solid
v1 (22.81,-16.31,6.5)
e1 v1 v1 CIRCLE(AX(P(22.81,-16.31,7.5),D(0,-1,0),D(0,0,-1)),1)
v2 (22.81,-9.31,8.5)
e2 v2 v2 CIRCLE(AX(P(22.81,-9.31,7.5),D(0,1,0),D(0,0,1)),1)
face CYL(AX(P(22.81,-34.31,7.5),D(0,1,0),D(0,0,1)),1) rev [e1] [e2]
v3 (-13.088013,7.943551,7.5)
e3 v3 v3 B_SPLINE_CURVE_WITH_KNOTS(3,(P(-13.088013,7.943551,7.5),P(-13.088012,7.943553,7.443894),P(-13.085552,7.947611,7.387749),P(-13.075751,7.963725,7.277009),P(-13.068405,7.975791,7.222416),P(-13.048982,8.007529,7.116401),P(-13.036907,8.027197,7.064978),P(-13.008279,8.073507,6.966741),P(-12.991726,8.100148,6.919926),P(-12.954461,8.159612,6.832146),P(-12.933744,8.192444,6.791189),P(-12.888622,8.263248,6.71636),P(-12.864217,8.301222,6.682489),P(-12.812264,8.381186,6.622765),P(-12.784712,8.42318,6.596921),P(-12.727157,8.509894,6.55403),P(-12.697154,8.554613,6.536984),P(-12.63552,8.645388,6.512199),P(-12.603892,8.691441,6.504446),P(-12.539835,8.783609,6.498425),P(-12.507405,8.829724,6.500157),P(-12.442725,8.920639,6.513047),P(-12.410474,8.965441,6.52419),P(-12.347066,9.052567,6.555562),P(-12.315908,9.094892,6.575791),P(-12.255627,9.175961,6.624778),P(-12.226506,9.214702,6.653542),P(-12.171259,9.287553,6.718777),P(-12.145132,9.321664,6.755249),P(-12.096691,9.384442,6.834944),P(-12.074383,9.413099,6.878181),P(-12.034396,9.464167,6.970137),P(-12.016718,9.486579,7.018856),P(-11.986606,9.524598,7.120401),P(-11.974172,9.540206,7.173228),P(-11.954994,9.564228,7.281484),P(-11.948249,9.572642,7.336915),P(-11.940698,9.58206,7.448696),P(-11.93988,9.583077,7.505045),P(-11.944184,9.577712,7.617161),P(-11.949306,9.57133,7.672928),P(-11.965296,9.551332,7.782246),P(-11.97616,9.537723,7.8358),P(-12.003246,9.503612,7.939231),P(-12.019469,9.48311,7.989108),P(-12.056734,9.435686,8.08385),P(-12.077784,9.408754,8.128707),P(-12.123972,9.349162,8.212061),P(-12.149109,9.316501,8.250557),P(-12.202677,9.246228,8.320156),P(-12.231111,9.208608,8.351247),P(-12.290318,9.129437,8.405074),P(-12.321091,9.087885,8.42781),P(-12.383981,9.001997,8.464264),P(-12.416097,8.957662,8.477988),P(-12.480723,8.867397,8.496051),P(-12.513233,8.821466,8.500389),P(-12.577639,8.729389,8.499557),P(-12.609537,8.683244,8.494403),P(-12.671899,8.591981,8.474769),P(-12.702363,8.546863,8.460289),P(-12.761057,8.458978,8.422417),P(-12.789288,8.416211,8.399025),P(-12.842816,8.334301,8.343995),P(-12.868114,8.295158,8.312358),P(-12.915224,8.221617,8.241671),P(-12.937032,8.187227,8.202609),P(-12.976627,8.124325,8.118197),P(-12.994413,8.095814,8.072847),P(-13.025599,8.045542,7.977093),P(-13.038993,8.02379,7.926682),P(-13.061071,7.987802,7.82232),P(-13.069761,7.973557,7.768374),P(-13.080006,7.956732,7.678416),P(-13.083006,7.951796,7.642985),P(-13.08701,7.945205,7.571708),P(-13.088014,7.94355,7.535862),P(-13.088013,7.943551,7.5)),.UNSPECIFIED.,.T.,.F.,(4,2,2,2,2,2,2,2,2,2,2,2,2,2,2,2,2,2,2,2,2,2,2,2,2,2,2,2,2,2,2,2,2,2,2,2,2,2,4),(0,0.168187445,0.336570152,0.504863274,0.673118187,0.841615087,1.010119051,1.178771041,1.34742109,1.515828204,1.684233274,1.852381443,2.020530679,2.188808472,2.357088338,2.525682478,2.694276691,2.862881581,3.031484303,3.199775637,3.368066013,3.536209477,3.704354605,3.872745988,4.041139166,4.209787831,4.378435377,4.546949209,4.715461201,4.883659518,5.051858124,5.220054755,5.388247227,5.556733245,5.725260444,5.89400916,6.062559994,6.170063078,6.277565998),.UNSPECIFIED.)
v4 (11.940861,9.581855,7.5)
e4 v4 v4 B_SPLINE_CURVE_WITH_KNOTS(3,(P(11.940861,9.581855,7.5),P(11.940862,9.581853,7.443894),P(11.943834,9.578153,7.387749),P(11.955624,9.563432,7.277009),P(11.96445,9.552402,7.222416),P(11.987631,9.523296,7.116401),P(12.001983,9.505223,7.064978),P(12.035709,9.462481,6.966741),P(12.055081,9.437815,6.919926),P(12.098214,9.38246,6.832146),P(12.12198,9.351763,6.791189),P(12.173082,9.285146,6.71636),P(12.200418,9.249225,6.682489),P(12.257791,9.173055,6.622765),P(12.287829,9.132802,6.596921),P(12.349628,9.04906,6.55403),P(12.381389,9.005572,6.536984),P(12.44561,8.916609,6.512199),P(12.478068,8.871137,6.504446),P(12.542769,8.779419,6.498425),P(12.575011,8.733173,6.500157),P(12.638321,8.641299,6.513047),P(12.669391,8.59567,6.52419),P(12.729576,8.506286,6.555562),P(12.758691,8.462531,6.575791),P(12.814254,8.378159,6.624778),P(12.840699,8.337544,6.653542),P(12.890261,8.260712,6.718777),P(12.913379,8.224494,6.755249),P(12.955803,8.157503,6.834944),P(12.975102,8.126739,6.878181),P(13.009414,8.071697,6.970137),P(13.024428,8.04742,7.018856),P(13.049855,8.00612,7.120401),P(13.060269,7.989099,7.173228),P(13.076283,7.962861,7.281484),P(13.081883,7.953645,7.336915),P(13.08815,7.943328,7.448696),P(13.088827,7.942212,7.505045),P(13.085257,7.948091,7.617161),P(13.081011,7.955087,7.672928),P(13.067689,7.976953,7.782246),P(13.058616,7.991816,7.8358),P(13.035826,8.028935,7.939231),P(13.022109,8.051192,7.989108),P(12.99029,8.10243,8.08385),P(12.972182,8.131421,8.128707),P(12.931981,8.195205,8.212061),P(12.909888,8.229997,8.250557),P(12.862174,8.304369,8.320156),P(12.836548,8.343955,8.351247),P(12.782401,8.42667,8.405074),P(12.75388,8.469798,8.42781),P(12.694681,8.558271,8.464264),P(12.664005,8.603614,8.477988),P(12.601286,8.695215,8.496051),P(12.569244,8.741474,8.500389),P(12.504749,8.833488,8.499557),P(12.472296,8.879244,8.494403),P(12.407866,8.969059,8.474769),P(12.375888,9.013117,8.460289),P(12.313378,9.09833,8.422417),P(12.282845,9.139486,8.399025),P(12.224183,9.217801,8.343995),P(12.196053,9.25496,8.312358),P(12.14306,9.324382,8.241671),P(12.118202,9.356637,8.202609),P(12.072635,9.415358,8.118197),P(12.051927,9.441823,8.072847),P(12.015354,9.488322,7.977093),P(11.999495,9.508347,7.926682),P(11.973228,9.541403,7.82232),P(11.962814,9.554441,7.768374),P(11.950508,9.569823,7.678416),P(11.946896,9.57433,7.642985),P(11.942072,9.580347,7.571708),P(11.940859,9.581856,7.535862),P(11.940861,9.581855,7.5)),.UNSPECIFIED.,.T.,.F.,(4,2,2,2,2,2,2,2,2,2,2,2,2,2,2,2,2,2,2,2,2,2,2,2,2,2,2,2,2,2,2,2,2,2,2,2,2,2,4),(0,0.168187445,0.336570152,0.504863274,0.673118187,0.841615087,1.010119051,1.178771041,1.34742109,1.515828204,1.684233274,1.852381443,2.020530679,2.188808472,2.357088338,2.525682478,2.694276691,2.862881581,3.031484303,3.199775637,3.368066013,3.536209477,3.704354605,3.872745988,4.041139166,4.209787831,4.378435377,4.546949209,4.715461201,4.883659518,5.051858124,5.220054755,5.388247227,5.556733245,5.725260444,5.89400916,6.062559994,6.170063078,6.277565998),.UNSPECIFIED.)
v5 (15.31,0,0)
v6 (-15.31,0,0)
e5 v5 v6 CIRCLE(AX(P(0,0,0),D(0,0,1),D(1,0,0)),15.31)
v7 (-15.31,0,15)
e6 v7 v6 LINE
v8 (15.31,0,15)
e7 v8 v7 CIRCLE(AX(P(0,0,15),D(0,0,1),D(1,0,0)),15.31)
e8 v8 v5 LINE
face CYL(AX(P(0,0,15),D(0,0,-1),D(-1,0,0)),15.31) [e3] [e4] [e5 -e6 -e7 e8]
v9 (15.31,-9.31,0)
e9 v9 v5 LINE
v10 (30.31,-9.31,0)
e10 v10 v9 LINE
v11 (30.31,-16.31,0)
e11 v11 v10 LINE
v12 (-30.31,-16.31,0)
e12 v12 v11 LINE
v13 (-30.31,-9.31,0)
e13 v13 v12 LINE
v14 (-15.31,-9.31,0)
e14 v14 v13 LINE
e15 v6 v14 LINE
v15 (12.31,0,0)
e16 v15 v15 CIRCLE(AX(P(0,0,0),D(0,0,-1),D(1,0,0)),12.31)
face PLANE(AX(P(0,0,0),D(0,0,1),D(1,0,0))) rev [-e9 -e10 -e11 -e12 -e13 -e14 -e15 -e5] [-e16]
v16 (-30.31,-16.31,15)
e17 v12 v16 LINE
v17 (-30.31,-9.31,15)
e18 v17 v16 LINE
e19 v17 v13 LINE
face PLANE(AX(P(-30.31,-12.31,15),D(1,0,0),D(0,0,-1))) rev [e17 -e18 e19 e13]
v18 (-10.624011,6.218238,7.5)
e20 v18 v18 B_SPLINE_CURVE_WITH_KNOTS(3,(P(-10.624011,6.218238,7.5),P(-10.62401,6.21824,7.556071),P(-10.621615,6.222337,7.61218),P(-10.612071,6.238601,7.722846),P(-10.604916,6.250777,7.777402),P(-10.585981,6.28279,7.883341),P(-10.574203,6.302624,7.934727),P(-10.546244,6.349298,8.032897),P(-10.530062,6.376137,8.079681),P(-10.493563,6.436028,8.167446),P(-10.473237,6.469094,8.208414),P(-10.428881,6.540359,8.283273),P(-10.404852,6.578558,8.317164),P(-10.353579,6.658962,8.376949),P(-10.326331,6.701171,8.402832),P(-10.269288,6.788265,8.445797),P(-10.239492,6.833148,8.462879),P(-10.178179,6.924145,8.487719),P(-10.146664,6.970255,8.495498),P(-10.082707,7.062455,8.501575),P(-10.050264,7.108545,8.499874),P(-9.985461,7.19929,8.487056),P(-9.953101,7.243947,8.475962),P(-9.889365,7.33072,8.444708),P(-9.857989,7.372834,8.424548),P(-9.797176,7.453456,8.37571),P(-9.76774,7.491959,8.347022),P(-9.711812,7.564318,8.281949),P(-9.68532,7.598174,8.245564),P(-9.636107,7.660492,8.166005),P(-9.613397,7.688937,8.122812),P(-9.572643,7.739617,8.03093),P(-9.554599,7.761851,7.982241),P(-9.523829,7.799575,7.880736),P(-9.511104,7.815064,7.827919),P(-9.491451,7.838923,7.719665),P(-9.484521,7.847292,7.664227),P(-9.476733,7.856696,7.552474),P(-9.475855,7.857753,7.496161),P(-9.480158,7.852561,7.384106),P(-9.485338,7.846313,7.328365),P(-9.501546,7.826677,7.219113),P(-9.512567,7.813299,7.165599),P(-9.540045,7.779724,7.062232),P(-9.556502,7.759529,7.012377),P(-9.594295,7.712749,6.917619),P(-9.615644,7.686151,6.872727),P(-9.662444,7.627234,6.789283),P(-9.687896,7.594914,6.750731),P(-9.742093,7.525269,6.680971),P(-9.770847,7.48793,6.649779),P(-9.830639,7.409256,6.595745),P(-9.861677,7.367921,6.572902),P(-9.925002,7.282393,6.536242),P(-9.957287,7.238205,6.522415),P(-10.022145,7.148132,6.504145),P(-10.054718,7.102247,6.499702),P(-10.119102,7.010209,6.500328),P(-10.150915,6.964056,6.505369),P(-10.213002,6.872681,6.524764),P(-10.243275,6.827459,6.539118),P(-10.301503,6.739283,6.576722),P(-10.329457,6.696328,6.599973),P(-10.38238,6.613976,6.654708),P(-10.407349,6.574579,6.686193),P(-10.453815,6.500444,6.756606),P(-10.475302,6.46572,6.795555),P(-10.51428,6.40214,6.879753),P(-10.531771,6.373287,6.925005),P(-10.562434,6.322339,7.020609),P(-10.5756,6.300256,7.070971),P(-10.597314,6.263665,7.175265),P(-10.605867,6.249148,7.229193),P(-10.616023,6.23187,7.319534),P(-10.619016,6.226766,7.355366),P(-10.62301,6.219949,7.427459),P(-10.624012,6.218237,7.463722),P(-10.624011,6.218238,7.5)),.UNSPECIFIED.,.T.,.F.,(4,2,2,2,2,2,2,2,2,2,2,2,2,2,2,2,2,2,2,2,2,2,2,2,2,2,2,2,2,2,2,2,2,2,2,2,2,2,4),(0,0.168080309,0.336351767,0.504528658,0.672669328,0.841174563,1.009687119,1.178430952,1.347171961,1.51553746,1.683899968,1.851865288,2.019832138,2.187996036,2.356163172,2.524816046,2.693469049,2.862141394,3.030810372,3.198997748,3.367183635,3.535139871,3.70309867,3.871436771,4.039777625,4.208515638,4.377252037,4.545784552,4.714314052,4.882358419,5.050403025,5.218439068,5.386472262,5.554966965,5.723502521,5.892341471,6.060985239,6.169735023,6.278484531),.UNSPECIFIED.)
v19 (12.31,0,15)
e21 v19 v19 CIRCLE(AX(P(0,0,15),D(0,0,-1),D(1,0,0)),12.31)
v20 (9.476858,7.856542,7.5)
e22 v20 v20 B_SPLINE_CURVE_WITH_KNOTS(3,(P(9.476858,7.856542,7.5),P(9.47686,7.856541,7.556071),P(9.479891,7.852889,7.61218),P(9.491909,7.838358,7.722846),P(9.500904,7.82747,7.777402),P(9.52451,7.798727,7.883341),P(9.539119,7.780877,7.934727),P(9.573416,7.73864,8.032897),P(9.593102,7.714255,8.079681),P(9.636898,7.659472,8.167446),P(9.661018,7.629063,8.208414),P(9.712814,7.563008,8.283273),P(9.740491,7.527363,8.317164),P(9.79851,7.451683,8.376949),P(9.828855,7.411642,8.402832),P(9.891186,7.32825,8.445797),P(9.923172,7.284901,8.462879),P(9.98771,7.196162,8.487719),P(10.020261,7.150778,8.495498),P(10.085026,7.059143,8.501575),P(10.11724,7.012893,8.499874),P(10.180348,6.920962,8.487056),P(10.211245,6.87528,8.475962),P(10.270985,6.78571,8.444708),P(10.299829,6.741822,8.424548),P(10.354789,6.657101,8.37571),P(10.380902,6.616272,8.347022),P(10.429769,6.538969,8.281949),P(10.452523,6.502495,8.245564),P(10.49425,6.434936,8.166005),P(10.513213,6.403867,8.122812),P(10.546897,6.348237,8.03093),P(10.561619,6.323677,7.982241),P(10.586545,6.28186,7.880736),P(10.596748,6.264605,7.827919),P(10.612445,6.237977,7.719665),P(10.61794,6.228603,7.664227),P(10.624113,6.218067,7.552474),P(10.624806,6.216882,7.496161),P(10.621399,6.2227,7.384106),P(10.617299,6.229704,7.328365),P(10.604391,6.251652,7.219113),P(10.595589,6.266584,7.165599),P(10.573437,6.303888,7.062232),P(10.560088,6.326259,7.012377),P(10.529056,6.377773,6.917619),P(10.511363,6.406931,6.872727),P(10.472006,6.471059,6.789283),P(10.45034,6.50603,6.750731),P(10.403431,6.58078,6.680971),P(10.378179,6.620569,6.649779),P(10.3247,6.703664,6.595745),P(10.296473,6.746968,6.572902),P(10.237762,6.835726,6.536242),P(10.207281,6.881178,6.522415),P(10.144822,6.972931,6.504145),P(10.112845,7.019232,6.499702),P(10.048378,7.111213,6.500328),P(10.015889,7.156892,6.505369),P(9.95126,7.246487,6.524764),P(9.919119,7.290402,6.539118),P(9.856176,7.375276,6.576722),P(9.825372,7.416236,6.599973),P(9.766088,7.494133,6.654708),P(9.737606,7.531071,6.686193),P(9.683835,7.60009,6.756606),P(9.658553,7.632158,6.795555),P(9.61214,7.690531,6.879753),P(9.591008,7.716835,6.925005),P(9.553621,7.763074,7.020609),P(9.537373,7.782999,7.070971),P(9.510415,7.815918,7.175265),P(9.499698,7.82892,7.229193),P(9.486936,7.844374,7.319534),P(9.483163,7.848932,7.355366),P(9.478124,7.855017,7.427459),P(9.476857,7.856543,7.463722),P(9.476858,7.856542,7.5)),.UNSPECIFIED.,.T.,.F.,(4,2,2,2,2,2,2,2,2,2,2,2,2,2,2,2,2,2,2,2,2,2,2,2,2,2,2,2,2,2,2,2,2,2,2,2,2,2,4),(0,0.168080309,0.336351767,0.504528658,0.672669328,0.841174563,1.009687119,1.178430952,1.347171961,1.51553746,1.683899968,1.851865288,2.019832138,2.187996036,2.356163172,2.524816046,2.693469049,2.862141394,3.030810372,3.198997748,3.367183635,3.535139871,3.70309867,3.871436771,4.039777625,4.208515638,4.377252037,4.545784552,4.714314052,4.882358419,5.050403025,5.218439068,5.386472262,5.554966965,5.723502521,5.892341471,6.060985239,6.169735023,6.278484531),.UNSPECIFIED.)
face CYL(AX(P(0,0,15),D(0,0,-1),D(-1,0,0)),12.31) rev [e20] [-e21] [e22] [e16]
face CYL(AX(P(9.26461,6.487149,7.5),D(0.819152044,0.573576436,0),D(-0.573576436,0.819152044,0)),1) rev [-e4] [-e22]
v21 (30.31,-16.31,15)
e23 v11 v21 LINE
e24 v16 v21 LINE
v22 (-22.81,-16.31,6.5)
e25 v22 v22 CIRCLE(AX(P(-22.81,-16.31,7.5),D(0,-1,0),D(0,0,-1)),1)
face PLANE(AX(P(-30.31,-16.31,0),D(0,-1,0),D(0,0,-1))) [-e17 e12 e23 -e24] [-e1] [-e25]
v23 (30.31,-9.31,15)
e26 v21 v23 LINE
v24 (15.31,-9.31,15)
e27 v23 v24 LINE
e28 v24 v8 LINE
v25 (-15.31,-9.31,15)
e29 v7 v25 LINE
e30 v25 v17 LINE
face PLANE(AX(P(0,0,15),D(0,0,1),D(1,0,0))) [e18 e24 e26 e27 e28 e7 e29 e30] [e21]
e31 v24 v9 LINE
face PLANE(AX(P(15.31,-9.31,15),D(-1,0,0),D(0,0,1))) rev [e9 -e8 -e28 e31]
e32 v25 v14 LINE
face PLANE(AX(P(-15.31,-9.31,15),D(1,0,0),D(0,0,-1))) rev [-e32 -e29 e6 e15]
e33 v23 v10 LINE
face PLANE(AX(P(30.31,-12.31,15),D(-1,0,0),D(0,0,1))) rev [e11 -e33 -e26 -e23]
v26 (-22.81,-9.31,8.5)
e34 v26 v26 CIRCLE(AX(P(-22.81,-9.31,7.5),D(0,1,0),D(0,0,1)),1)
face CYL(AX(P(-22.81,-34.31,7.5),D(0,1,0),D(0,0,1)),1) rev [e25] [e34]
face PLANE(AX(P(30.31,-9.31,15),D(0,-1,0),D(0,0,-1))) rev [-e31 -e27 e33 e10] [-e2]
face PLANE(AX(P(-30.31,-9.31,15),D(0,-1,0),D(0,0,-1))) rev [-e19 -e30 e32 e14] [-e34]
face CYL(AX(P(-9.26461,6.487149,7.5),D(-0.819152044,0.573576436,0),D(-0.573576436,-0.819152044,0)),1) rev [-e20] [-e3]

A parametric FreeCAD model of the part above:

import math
import FreeCAD as App
import Part
import Sketcher
from FreeCAD import Vector

doc = App.newDocument("Part")
body = doc.addObject("PartDesign::Body", "Body")

# Sketch on XY plane
sketch1 = body.newObject("Sketcher::SketchObject", "Sketch")
sketch1.AttachmentSupport = (doc.getObject("XY_Plane"), [""])
sketch1.MapMode = "FlatFace"
sketch1.addGeometry([
    Part.LineSegment(Vector(-12.3, -12.3, 0), Vector(-12.3, 0, 0)),  # 0
    Part.ArcOfCircle(Part.Circle(Vector(0, 0, 0), Vector(0, 0, 1), 12.3), math.radians(0), math.radians(180)),  # 1
    Part.LineSegment(Vector(12.3, 0, 0), Vector(12.3, -12.3, 0)),  # 2
    Part.LineSegment(Vector(12.3, -12.3, 0), Vector(30.3, -12.3, 0)),  # 3
    Part.LineSegment(Vector(30.3, -12.3, 0), Vector(30.3, -9.3, 0)),  # 4
    Part.LineSegment(Vector(30.3, -9.3, 0), Vector(15.3, -9.3, 0)),  # 5
    Part.LineSegment(Vector(15.3, -9.3, 0), Vector(15.3, 0, 0)),  # 6
    Part.ArcOfCircle(Part.Circle(Vector(0, 0, 0), Vector(0, 0, 1), 15.3), math.radians(0), math.radians(180)),  # 7
    Part.LineSegment(Vector(-15.3, 0, 0), Vector(-15.3, -9.3, 0)),  # 8
    Part.LineSegment(Vector(-15.3, -9.3, 0), Vector(-30.3, -9.3, 0)),  # 9
    Part.LineSegment(Vector(-30.3, -9.3, 0), Vector(-30.3, -12.3, 0)),  # 10
    Part.LineSegment(Vector(-30.3, -12.3, 0), Vector(-12.3, -12.3, 0)),  # 11
], False)
sketch1.addConstraint([
    Sketcher.Constraint("Tangent", 0, 2, 1, 2),
    Sketcher.Constraint("Tangent", 1, 1, 2, 1),
    Sketcher.Constraint("Coincident", 2, 2, 3, 1),
    Sketcher.Constraint("Coincident", 3, 2, 4, 1),
    Sketcher.Constraint("Coincident", 4, 2, 5, 1),
    Sketcher.Constraint("Coincident", 5, 2, 6, 1),
    Sketcher.Constraint("Tangent", 6, 2, 7, 1),
    Sketcher.Constraint("Tangent", 7, 2, 8, 1),
    Sketcher.Constraint("Coincident", 8, 2, 9, 1),
    Sketcher.Constraint("Coincident", 9, 2, 10, 1),
    Sketcher.Constraint("Coincident", 10, 2, 11, 1),
    Sketcher.Constraint("Coincident", 11, 2, 0, 1),
    Sketcher.Constraint("Vertical", 0),
    Sketcher.Constraint("Vertical", 2),
    Sketcher.Constraint("Horizontal", 3),
    Sketcher.Constraint("Vertical", 4),
    Sketcher.Constraint("Horizontal", 5),
    Sketcher.Constraint("Vertical", 6),
    Sketcher.Constraint("Vertical", 8),
    Sketcher.Constraint("Horizontal", 9),
    Sketcher.Constraint("Vertical", 10),
    Sketcher.Constraint("Horizontal", 11),
    Sketcher.Constraint("Coincident", 1, 3, -1, 1),
    Sketcher.Constraint("Coincident", 7, 3, -1, 1),
    Sketcher.Constraint("Symmetric", 4, 2, 9, 2, -2),
    Sketcher.Constraint("Horizontal", 3, 2, 10, 2),
    Sketcher.Constraint("DistanceX", 3, 1, 3, 2, 18.0),
    Sketcher.Constraint("DistanceX", 5, 2, 5, 1, 15.0),
    Sketcher.Constraint("DistanceY", 4, 1, 4, 2, 3.0),
    Sketcher.Constraint("Radius", 1, 12.31),
    Sketcher.Constraint("DistanceY", 0, 1, 0, 2, 12.31),
])
pad1 = body.newObject("PartDesign::Pad", "Pad")
pad1.Profile = sketch1
pad1.Length = 15

# Sketch on XY plane
sketch2 = body.newObject("Sketcher::SketchObject", "Sketch001")
sketch2.AttachmentSupport = (doc.getObject("XY_Plane"), [""])
sketch2.MapMode = "FlatFace"
sketch2.addGeometry([
    Part.LineSegment(Vector(-12.3, -12.3, 0), Vector(-30.3, -12.3, 0)),  # 0
    Part.LineSegment(Vector(-30.3, -12.3, 0), Vector(-30.3, -16.3, 0)),  # 1
    Part.LineSegment(Vector(-30.3, -16.3, 0), Vector(30.3, -16.3, 0)),  # 2
    Part.LineSegment(Vector(30.3, -16.3, 0), Vector(30.3, -12.3, 0)),  # 3
    Part.LineSegment(Vector(30.3, -12.3, 0), Vector(12.3, -12.3, 0)),  # 4
    Part.LineSegment(Vector(12.3, -12.3, 0), Vector(12.3, 0, 0)),  # 5
    Part.ArcOfCircle(Part.Circle(Vector(0, 0, 0), Vector(0, 0, 1), 12.3), math.radians(180), math.radians(360)),  # 6
    Part.LineSegment(Vector(-12.3, 0, 0), Vector(-12.3, -12.3, 0)),  # 7
], False)
sketch2.addConstraint([
    Sketcher.Constraint("Coincident", 0, 2, 1, 1),
    Sketcher.Constraint("Coincident", 1, 2, 2, 1),
    Sketcher.Constraint("Coincident", 2, 2, 3, 1),
    Sketcher.Constraint("Coincident", 3, 2, 4, 1),
    Sketcher.Constraint("Coincident", 4, 2, 5, 1),
    Sketcher.Constraint("Tangent", 5, 2, 6, 2),
    Sketcher.Constraint("Tangent", 6, 1, 7, 1),
    Sketcher.Constraint("Coincident", 7, 2, 0, 1),
    Sketcher.Constraint("Horizontal", 0),
    Sketcher.Constraint("Vertical", 1),
    Sketcher.Constraint("Horizontal", 2),
    Sketcher.Constraint("Vertical", 3),
    Sketcher.Constraint("Horizontal", 4),
    Sketcher.Constraint("Vertical", 5),
    Sketcher.Constraint("Vertical", 7),
    Sketcher.Constraint("Coincident", 6, 3, -1, 1),
    Sketcher.Constraint("Symmetric", 0, 2, 3, 2, -2),
    Sketcher.Constraint("DistanceX", 0, 2, 0, 1, 18.0),
    Sketcher.Constraint("DistanceY", 1, 2, 1, 1, 4.0),
    Sketcher.Constraint("Radius", 6, 12.31),
    Sketcher.Constraint("DistanceY", 5, 1, 5, 2, 12.31),
])
pad2 = body.newObject("PartDesign::Pad", "Pad001")
pad2.Profile = sketch2
pad2.Length = 15

# Sketch on XZ plane
sketch3 = body.newObject("Sketcher::SketchObject", "Sketch002")
sketch3.AttachmentSupport = (doc.getObject("XZ_Plane"), [""])
sketch3.MapMode = "FlatFace"
sketch3.AttachmentOffset = App.Placement(Vector(0, 0, 9.31), App.Rotation())
sketch3.addGeometry([
    Part.Circle(Vector(22.8, 7.5, 0), Vector(0, 0, 1), 1),
    Part.Circle(Vector(-22.8, 7.5, 0), Vector(0, 0, 1), 1),
], False)
sketch3.addConstraint([
    Sketcher.Constraint("Equal", 0, 1),
    Sketcher.Constraint("Symmetric", 0, 3, 1, 3, -2),
    Sketcher.Constraint("Diameter", 0, 2.0),
    Sketcher.Constraint("DistanceY", -1, 1, 0, 3, 7.5),
    Sketcher.Constraint("DistanceX", -1, 1, 0, 3, 22.81),
])
pocket1 = body.newObject("PartDesign::Pocket", "Pocket")
pocket1.Profile = sketch3
pocket1.Length = 25
pocket1.Reversed = True

# Sketch on an angled plane
sketch4 = body.newObject("Sketcher::SketchObject", "Sketch003")
sketch4.Placement = App.Placement(Vector(12.541218, 8.781455, 0), App.Rotation(Vector(0, 0, -1), Vector(-0.573576436, 0.819152044, 0), Vector(0.819152044, 0.573576436, 0), "ZXY"))
sketch4.addGeometry(Part.Circle(Vector(-7.5, 0, 0), Vector(0, 0, 1), 1), False)
sketch4.addConstraint([
    Sketcher.Constraint("PointOnObject", 0, 3, -1),
    Sketcher.Constraint("Diameter", 0, 2.0),
    Sketcher.Constraint("DistanceX", 0, 3, -1, 1, 7.5),
])
pocket2 = body.newObject("PartDesign::Pocket", "Pocket001")
pocket2.Profile = sketch4
pocket2.Length = 4

# Sketch on an angled plane
sketch5 = body.newObject("Sketcher::SketchObject", "Sketch004")
sketch5.Placement = App.Placement(Vector(-12.541218, 8.781455, 0), App.Rotation(Vector(0, 0, 1), Vector(0.573576436, 0.819152044, 0), Vector(-0.819152044, 0.573576436, 0), "ZXY"))
sketch5.addGeometry(Part.Circle(Vector(7.5, 0, 0), Vector(0, 0, 1), 1), False)
sketch5.addConstraint([
    Sketcher.Constraint("PointOnObject", 0, 3, -1),
    Sketcher.Constraint("Diameter", 0, 2.0),
    Sketcher.Constraint("DistanceX", -1, 1, 0, 3, 7.5),
])
pocket3 = body.newObject("PartDesign::Pocket", "Pocket002")
pocket3.Profile = sketch5
pocket3.Length = 4

doc.recompute()
